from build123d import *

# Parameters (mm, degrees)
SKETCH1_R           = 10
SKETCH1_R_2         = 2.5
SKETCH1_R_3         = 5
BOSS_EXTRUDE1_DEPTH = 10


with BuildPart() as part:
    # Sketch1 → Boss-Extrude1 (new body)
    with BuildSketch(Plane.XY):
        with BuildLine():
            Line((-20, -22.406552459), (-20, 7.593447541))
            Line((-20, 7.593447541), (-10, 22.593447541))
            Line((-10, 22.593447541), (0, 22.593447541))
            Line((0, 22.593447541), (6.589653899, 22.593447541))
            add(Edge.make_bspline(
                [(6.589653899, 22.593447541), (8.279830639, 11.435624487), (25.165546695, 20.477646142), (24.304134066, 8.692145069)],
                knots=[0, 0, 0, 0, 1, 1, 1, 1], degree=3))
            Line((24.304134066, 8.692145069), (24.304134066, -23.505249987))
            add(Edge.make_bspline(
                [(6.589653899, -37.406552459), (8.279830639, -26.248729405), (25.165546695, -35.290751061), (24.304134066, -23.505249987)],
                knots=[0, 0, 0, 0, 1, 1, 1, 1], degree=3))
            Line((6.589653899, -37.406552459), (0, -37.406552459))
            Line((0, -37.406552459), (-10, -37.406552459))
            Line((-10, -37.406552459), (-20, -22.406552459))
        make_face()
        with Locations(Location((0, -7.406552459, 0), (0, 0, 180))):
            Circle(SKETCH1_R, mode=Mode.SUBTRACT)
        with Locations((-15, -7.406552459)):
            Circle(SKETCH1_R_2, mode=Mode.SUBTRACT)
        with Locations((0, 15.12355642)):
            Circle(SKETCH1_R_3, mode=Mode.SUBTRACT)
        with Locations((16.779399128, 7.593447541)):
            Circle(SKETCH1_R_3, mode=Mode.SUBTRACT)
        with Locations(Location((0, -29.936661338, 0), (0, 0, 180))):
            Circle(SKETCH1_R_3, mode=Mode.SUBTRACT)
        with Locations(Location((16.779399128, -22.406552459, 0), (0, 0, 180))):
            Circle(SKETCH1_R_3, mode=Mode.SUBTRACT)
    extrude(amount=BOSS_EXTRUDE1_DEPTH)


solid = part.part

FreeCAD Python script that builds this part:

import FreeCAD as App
import Part
import Sketcher

V = App.Vector

doc = App.newDocument("Part")
body = doc.addObject("PartDesign::Body", "Body")

sketch1 = body.newObject("Sketcher::SketchObject", "Sketch")
sketch1.AttachmentSupport = (doc.getObject("XY_Plane"), [""])
sketch1.MapMode = "FlatFace"
sketch1.addGeometry([
    Part.LineSegment(V(-20, 7.593448, 0), V(-20, -22.406552, 0)),
    Part.LineSegment(V(-20, -22.406552, 0), V(-10, -37.406552, 0)),
    Part.LineSegment(V(-10, -37.406552, 0), V(6.589654, -37.406552, 0)),
    Part.BSplineCurve([V(6.589654, -37.406552, 0), V(8.279831, -26.248729, 0), V(25.165547, -35.290751, 0), V(24.304134, -23.50525, 0)], [4, 4], [0, 1], False, 3, [1, 1, 1, 1], False),
    Part.LineSegment(V(24.304134, -23.50525, 0), V(24.304134, 8.692145, 0)),
    Part.BSplineCurve([V(6.589654, 22.593448, 0), V(8.279831, 11.435624, 0), V(25.165547, 20.477646, 0), V(24.304134, 8.692145, 0)], [4, 4], [0, 1], False, 3, [1, 1, 1, 1], False),
    Part.LineSegment(V(6.589654, 22.593448, 0), V(-10, 22.593448, 0)),
    Part.LineSegment(V(-10, 22.593448, 0), V(-20, 7.593448, 0)),
    Part.Circle(V(16.779399, -22.406552, 0), V(0, 0, 1), 5),
    Part.Circle(V(0, -29.936661, 0), V(0, 0, 1), 5),
    Part.Circle(V(16.779399, 7.593448, 0), V(0, 0, 1), 5),
    Part.Circle(V(0, -7.406552, 0), V(0, 0, 1), 10),
    Part.Circle(V(-15, -7.406552, 0), V(0, 0, 1), 2.5),
    Part.Circle(V(0, 15.123556, 0), V(0, 0, 1), 5),
], False)
sketch1.addConstraint([
    Sketcher.Constraint("Block", 3),
    Sketcher.Constraint("Block", 5),
    Sketcher.Constraint("Coincident", 0, 2, 1, 1),
    Sketcher.Constraint("Coincident", 1, 2, 2, 1),
    Sketcher.Constraint("Coincident", 2, 2, 3, 1),
    Sketcher.Constraint("Coincident", 3, 2, 4, 1),
    Sketcher.Constraint("Coincident", 4, 2, 5, 2),
    Sketcher.Constraint("Coincident", 5, 1, 6, 1),
    Sketcher.Constraint("Coincident", 6, 2, 7, 1),
    Sketcher.Constraint("Coincident", 7, 2, 0, 1),
    Sketcher.Constraint("Vertical", 0),
    Sketcher.Constraint("Horizontal", 2),
    Sketcher.Constraint("Horizontal", 6),
    Sketcher.Constraint("Equal", 8, 9),
    Sketcher.Constraint("Equal", 9, 10),
    Sketcher.Constraint("Equal", 10, 13),
    Sketcher.Constraint("PointOnObject", 9, 3, -2),
    Sketcher.Constraint("PointOnObject", 11, 3, -2),
    Sketcher.Constraint("PointOnObject", 13, 3, -2),
    Sketcher.Constraint("Horizontal", 11, 3, 12, 3),
    Sketcher.Constraint("Horizontal", 8, 3, 0, 2),
    Sketcher.Constraint("Horizontal", 10, 3, 7, 2),
    Sketcher.Constraint("Vertical", 8, 3, 10, 3),
    Sketcher.Constraint("Vertical", 1, 2, 6, 2),
    Sketcher.Constraint("Equal", 1, 7),
    Sketcher.Constraint("Diameter", 8, 10.0),
    Sketcher.Constraint("Diameter", 11, 20.0),
    Sketcher.Constraint("Diameter", 12, 5.0),
    Sketcher.Constraint("DistanceY", 0, 2, 0, 1, 30.0),
    Sketcher.Constraint("DistanceX", 12, 3, -1, 1, 15.0),
    Sketcher.Constraint("DistanceX", 0, 2, -1, 1, 20.0),
    Sketcher.Constraint("DistanceX", 1, 2, -1, 1, 10.0),
    Sketcher.Constraint("DistanceY", 8, 3, 11, 3, 15.0),
    Sketcher.Constraint("DistanceX", -1, 1, 8, 3, 16.779399),
    Sketcher.Constraint("DistanceY", 9, 3, -1, 1, 29.936661),
    Sketcher.Constraint("DistanceY", 10, 3, 13, 3, 7.530109),
])
pad1 = body.newObject("PartDesign::Pad", "Pad")
pad1.Profile = sketch1
pad1.Length = 10

doc.recompute()
